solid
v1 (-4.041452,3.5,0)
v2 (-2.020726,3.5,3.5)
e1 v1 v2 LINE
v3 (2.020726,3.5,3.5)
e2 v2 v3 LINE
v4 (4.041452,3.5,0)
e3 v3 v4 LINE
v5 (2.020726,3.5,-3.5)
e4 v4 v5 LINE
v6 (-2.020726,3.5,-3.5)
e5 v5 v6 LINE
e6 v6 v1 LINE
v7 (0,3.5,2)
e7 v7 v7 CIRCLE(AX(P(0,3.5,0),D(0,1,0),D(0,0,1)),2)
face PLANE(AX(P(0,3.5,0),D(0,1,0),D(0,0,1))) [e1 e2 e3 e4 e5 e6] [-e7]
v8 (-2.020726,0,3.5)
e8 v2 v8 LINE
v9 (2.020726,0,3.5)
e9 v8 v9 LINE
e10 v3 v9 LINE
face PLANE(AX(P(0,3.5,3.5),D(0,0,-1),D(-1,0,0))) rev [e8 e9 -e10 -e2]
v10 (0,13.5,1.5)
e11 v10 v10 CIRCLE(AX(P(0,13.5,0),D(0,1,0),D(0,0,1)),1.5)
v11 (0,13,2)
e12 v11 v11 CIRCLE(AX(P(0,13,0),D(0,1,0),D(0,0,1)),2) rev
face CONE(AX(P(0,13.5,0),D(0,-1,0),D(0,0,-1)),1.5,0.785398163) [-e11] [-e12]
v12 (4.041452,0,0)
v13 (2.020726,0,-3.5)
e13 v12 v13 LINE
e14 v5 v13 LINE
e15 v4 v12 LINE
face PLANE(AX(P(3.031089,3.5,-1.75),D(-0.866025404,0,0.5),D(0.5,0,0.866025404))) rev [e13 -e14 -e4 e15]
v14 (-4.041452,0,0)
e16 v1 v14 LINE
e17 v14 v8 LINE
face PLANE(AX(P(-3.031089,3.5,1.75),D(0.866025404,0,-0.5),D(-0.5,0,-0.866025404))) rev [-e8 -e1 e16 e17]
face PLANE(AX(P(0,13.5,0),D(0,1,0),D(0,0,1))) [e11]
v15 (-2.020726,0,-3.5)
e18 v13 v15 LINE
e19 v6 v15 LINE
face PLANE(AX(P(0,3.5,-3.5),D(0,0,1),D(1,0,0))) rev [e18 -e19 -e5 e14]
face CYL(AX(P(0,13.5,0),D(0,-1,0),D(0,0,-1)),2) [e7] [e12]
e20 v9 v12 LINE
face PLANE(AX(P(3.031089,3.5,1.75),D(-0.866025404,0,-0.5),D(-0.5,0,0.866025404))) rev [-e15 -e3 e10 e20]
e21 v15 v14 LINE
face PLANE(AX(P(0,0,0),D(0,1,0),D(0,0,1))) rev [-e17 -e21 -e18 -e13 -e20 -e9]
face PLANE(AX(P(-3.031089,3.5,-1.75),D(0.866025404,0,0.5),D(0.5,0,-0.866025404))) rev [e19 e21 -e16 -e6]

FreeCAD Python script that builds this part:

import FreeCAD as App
import Part
import Sketcher

V = App.Vector
Q = App.Units.Quantity


def edges_at(feature, points):
    """Names of the edges that pass closest to the given points."""
    edges = feature.Shape.Edges
    near = lambda p: min(range(len(edges)), key=lambda i: edges[i].distToShape(Part.Vertex(*p))[0])
    return sorted({f"Edge{near(p) + 1}" for p in points})

doc = App.newDocument("Part")
body = doc.addObject("PartDesign::Body", "Body")

sketch1 = doc.addObject("Sketcher::SketchObject", "Sketch")
body.addObject(sketch1)
sketch1.AttachmentSupport = (doc.XZ_Plane, [""])
sketch1.MapMode = "FlatFace"
sketch1.addGeometry([
    Part.LineSegment(V(-4, 0, 0), V(-2, 3.5, 0)),
    Part.LineSegment(V(-2, 3.5, 0), V(2, 3.5, 0)),
    Part.LineSegment(V(2, 3.5, 0), V(4, 0, 0)),
    Part.LineSegment(V(4, 0, 0), V(2, -3.5, 0)),
    Part.LineSegment(V(2, -3.5, 0), V(-2, -3.5, 0)),
    Part.LineSegment(V(-2, -3.5, 0), V(-4, 0, 0)),
], False)
sketch1.addConstraint([
    Sketcher.Constraint("Coincident", 0, 2, 1, 1),
    Sketcher.Constraint("Coincident", 1, 2, 2, 1),
    Sketcher.Constraint("Coincident", 2, 2, 3, 1),
    Sketcher.Constraint("Coincident", 3, 2, 4, 1),
    Sketcher.Constraint("Coincident", 4, 2, 5, 1),
    Sketcher.Constraint("Coincident", 5, 2, 0, 1),
    Sketcher.Constraint("Horizontal", 1),
    Sketcher.Constraint("Horizontal", 4),
    Sketcher.Constraint("Symmetric", 0, 2, 3, 2, -1, 1),
    Sketcher.Constraint("Symmetric", 2, 2, 5, 2, -1, 1),
    Sketcher.Constraint("PointOnObject", 2, 2, -1),
    Sketcher.Constraint("Parallel", 2, 5),
    Sketcher.Constraint("Vertical", 1, 2, 3, 2),
    Sketcher.Constraint("Angle", 0, Q("60 deg")),
    Sketcher.Constraint("DistanceY", 3, 2, 1, 2, 7.0),
    Sketcher.Constraint("DistanceX", 1, 1, 1, 2, 4.041452),
])
pad1 = doc.addObject("PartDesign::Pad", "Pad")
body.addObject(pad1)
pad1.Profile = sketch1
pad1.Length = 3.5
pad1.Reversed = True

sketch2 = doc.addObject("Sketcher::SketchObject", "Sketch001")
body.addObject(sketch2)
sketch2.AttachmentSupport = (doc.XZ_Plane, [""])
sketch2.MapMode = "FlatFace"
sketch2.AttachmentOffset = App.Placement(V(0, 0, -3.5), App.Rotation())
sketch2.addGeometry(Part.Circle(V(0, 0, 0), V(0, 0, 1), 2), False)
sketch2.addConstraint([
    Sketcher.Constraint("Coincident", 0, 3, -1, 1),
    Sketcher.Constraint("Diameter", 0, 4.0),
])
pad2 = doc.addObject("PartDesign::Pad", "Pad001")
body.addObject(pad2)
pad2.Profile = sketch2
pad2.Length = 10
pad2.Reversed = True
doc.recompute()

chamfer = doc.addObject("PartDesign::Chamfer", "Chamfer")
body.addObject(chamfer)
chamfer.Base = (pad2, edges_at(pad2, [(0, 13.5, -2)]))
chamfer.Size = 0.5

doc.recompute()
